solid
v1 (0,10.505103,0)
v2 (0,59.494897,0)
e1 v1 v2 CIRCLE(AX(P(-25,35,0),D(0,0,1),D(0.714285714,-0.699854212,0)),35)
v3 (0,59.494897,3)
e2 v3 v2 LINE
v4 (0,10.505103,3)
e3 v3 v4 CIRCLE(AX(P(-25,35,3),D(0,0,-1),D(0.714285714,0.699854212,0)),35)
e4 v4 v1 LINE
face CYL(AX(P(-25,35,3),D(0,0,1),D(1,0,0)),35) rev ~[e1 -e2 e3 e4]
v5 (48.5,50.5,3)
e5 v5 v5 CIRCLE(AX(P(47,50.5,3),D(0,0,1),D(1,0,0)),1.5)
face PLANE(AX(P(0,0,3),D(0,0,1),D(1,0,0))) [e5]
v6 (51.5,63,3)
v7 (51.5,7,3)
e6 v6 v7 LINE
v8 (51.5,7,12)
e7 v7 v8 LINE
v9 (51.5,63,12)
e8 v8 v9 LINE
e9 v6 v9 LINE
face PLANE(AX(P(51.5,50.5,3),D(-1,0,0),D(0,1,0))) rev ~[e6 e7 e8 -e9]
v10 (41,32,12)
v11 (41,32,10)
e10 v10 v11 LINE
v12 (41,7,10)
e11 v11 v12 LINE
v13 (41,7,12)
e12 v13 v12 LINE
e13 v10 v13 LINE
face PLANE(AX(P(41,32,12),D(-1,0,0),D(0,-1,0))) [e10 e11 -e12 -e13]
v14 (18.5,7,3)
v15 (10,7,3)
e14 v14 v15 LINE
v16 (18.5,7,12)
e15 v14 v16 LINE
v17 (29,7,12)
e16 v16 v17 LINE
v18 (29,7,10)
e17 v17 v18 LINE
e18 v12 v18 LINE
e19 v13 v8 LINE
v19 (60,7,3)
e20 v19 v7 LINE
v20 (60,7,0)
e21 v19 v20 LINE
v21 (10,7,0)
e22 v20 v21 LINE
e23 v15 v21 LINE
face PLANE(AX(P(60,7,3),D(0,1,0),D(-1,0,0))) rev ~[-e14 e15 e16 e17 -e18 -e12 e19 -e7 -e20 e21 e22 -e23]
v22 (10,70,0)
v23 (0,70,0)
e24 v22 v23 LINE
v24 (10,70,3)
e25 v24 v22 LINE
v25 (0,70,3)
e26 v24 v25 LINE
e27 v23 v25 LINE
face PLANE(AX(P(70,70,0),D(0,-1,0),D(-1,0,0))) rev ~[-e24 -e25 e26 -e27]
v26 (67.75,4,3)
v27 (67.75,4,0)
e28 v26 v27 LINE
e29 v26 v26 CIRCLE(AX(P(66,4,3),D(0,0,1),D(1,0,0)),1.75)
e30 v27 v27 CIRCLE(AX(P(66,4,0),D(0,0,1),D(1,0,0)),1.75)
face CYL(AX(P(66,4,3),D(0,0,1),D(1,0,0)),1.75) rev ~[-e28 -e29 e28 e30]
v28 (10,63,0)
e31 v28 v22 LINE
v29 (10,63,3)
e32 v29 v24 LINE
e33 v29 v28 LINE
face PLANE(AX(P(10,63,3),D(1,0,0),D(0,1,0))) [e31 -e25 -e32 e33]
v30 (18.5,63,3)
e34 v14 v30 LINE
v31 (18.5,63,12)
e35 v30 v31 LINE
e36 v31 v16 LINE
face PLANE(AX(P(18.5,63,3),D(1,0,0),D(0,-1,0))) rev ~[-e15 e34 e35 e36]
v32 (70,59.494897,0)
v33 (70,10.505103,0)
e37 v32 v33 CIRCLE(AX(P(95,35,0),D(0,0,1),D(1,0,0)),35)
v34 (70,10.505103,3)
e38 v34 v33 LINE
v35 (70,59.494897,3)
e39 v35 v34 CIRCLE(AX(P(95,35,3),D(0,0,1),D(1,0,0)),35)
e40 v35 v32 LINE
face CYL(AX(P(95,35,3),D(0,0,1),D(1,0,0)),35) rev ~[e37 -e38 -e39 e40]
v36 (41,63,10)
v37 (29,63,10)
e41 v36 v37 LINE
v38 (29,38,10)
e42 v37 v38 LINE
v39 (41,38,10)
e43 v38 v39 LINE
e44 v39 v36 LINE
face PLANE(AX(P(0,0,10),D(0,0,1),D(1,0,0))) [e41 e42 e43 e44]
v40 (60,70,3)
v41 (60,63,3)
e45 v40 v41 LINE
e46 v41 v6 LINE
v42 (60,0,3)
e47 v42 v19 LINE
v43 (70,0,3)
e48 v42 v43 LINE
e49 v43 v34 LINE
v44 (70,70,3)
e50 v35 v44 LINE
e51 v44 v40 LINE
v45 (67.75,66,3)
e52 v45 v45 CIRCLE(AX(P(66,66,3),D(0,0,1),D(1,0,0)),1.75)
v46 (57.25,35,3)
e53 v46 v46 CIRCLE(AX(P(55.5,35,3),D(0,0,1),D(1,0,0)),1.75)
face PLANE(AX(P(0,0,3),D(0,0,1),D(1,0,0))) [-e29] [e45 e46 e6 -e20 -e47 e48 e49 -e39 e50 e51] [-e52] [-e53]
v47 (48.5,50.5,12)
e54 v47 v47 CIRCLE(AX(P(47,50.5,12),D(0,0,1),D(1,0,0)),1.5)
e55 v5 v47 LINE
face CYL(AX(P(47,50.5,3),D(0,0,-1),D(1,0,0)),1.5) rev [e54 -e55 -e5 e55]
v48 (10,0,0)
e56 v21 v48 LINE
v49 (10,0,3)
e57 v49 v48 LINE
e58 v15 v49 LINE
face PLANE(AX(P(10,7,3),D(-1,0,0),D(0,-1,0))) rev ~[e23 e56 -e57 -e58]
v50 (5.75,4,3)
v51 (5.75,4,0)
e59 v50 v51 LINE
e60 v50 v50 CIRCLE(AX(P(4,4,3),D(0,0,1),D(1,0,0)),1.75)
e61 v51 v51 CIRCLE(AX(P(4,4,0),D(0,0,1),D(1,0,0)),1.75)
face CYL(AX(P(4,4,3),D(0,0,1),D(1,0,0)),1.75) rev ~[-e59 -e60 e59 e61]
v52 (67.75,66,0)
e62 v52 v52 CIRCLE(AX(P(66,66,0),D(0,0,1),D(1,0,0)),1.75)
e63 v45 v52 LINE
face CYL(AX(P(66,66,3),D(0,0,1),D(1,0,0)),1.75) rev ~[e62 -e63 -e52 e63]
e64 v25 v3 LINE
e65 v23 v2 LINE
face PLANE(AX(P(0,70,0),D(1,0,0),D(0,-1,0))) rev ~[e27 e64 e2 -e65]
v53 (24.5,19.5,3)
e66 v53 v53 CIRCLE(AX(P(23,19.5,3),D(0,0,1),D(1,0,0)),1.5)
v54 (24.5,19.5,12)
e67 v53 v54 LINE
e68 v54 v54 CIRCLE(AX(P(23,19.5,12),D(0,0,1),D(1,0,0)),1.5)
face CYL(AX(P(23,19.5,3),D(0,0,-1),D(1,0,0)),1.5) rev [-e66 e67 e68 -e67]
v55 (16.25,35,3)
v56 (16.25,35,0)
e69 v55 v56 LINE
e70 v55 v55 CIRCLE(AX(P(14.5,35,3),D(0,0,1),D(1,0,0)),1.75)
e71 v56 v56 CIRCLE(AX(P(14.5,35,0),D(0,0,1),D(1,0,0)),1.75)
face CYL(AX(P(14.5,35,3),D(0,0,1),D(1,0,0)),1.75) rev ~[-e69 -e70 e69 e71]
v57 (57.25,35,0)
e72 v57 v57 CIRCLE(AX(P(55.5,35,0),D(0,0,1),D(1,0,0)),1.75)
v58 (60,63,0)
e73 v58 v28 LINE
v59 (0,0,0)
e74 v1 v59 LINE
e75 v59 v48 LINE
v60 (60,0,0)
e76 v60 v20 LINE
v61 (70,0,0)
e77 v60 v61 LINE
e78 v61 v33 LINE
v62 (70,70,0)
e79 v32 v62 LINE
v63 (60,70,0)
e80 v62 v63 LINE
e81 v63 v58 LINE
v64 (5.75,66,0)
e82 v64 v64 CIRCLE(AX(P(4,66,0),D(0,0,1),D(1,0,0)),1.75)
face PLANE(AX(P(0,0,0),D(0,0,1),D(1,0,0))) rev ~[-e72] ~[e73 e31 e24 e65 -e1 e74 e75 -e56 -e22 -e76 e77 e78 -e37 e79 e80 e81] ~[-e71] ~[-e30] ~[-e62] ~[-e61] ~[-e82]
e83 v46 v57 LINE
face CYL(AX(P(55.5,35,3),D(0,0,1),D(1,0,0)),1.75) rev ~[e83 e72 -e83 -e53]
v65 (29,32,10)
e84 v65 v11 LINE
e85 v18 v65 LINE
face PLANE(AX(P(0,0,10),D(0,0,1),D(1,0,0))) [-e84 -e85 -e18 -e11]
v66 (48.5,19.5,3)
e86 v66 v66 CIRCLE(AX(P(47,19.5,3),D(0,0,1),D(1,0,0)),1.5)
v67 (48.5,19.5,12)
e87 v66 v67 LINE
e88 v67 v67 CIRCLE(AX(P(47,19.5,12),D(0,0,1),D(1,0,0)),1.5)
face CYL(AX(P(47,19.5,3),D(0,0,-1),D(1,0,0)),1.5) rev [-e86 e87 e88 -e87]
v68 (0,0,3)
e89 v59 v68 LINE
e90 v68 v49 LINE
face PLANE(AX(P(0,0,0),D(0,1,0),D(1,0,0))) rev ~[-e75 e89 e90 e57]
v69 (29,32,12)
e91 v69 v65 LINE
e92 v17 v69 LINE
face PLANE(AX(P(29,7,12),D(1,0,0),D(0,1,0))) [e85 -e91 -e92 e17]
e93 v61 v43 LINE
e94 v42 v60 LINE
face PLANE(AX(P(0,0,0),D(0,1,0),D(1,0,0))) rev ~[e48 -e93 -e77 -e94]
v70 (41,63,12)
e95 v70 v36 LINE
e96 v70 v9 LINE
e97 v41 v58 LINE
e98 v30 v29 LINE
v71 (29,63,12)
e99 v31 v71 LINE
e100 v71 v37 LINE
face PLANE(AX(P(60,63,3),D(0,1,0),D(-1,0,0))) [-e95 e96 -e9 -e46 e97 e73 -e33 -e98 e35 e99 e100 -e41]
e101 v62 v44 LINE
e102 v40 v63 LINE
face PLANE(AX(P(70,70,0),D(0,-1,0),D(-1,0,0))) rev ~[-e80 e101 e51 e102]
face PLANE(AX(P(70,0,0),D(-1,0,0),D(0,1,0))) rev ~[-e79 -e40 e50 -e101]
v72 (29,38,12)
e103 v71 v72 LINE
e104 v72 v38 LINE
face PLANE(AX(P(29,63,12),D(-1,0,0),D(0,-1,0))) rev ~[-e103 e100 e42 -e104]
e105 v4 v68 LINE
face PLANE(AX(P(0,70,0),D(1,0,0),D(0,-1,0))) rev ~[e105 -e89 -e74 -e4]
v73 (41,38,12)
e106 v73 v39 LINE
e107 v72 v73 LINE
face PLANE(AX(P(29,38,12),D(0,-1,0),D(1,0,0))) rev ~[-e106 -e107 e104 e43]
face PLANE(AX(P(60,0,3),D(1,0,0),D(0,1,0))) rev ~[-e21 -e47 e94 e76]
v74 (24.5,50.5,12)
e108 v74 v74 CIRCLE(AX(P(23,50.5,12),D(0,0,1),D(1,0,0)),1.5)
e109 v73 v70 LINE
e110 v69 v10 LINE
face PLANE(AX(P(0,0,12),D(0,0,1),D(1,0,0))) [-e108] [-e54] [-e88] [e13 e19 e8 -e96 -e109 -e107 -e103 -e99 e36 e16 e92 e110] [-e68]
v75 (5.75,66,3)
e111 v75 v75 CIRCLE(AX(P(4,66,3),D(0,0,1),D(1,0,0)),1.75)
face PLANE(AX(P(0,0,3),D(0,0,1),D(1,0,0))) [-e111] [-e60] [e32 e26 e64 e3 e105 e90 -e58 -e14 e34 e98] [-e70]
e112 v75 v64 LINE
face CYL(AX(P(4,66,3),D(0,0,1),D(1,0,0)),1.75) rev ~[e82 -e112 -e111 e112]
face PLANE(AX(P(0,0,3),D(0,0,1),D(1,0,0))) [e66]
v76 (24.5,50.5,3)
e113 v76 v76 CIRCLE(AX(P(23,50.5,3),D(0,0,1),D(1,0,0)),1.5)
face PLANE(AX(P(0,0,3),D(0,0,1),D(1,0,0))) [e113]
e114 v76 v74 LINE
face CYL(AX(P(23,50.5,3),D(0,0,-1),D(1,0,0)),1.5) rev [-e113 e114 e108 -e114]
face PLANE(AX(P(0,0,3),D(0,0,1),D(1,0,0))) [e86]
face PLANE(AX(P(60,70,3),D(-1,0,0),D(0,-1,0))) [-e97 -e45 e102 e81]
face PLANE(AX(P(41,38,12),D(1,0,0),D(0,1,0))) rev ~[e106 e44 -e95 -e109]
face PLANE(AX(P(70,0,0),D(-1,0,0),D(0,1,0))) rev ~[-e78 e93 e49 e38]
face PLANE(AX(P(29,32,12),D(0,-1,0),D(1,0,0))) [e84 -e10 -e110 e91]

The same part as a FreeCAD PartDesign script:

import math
import FreeCAD as App
import Part
import Sketcher

doc = App.newDocument("Part")
body = doc.addObject("PartDesign::Body", "Body")

# Sketch on XY plane
sketch1 = doc.addObject("Sketcher::SketchObject", "Sketch")
body.addObject(sketch1)
sketch1.AttachmentSupport = (doc.XY_Plane, [""])
sketch1.MapMode = "FlatFace"
sketch1.addGeometry(Part.LineSegment(App.Vector(0, 70, 0), App.Vector(0, 0, 0)), False)
sketch1.addGeometry(Part.LineSegment(App.Vector(0, 0, 0), App.Vector(70, 0, 0)), False)
sketch1.addGeometry(Part.LineSegment(App.Vector(70, 0, 0), App.Vector(70, 70, 0)), False)
sketch1.addGeometry(Part.LineSegment(App.Vector(70, 70, 0), App.Vector(0, 70, 0)), False)
sketch1.addConstraint(Sketcher.Constraint("Coincident", 0, 2, 1, 1))
sketch1.addConstraint(Sketcher.Constraint("Coincident", 1, 2, 2, 1))
sketch1.addConstraint(Sketcher.Constraint("Coincident", 2, 2, 3, 1))
sketch1.addConstraint(Sketcher.Constraint("Coincident", 3, 2, 0, 1))
sketch1.addConstraint(Sketcher.Constraint("Vertical", 0))
sketch1.addConstraint(Sketcher.Constraint("Horizontal", 1))
sketch1.addConstraint(Sketcher.Constraint("Vertical", 2))
sketch1.addConstraint(Sketcher.Constraint("Horizontal", 3))
sketch1.addConstraint(Sketcher.Constraint("Coincident", 0, 2, -1, 1))
sketch1.addConstraint(Sketcher.Constraint("Equal", 3, 0))
sketch1.addConstraint(Sketcher.Constraint("DistanceX", 1, 1, 1, 2, 70.0))
pad1 = doc.addObject("PartDesign::Pad", "Pad")
body.addObject(pad1)
pad1.Profile = sketch1
pad1.Length = 3

# Sketch on XY plane
sketch2 = doc.addObject("Sketcher::SketchObject", "Sketch001")
body.addObject(sketch2)
sketch2.AttachmentSupport = (doc.XY_Plane, [""])
sketch2.MapMode = "FlatFace"
sketch2.AttachmentOffset = App.Placement(App.Vector(0, 0, 3), App.Rotation())
sketch2.addGeometry(Part.LineSegment(App.Vector(18.5, 63, 0), App.Vector(18.5, 7, 0)), False)
sketch2.addGeometry(Part.LineSegment(App.Vector(18.5, 7, 0), App.Vector(51.5, 7, 0)), False)
sketch2.addGeometry(Part.LineSegment(App.Vector(51.5, 7, 0), App.Vector(51.5, 63, 0)), False)
sketch2.addGeometry(Part.LineSegment(App.Vector(51.5, 63, 0), App.Vector(18.5, 63, 0)), False)
sketch2.addGeometry(Part.Circle(App.Vector(23, 50.5, 0), App.Vector(0, 0, 1), 1.5), False)
sketch2.addGeometry(Part.Circle(App.Vector(47, 50.5, 0), App.Vector(0, 0, 1), 1.5), False)
sketch2.addGeometry(Part.Circle(App.Vector(23, 19.5, 0), App.Vector(0, 0, 1), 1.5), False)
sketch2.addGeometry(Part.Circle(App.Vector(47, 19.5, 0), App.Vector(0, 0, 1), 1.5), False)
sketch2.addConstraint(Sketcher.Constraint("Coincident", 0, 2, 1, 1))
sketch2.addConstraint(Sketcher.Constraint("Coincident", 1, 2, 2, 1))
sketch2.addConstraint(Sketcher.Constraint("Coincident", 2, 2, 3, 1))
sketch2.addConstraint(Sketcher.Constraint("Coincident", 3, 2, 0, 1))
sketch2.addConstraint(Sketcher.Constraint("Vertical", 0))
sketch2.addConstraint(Sketcher.Constraint("Horizontal", 1))
sketch2.addConstraint(Sketcher.Constraint("Vertical", 2))
sketch2.addConstraint(Sketcher.Constraint("Horizontal", 3))
sketch2.addConstraint(Sketcher.Constraint("Equal", 4, 5))
sketch2.addConstraint(Sketcher.Constraint("Equal", 5, 6))
sketch2.addConstraint(Sketcher.Constraint("Equal", 6, 7))
sketch2.addConstraint(Sketcher.Constraint("Horizontal", 4, 3, 5, 3))
sketch2.addConstraint(Sketcher.Constraint("Horizontal", 6, 3, 7, 3))
sketch2.addConstraint(Sketcher.Constraint("Vertical", 4, 3, 6, 3))
sketch2.addConstraint(Sketcher.Constraint("Vertical", 5, 3, 7, 3))
sketch2.addConstraint(Sketcher.Constraint("Diameter", 4, 3.0))
sketch2.addConstraint(Sketcher.Constraint("DistanceY", 0, 2, 0, 1, 56.0))
sketch2.addConstraint(Sketcher.Constraint("DistanceY", -1, 1, 0, 2, 7.0))
sketch2.addConstraint(Sketcher.Constraint("DistanceY", 0, 2, 6, 3, 12.5))
sketch2.addConstraint(Sketcher.Constraint("DistanceY", 5, 3, 2, 2, 12.5))
sketch2.addConstraint(Sketcher.Constraint("DistanceX", 1, 1, 1, 2, 33.0))
sketch2.addConstraint(Sketcher.Constraint("DistanceX", -1, 1, 4, 3, 23.0))
sketch2.addConstraint(Sketcher.Constraint("DistanceX", -1, 1, 5, 3, 47.0))
sketch2.addConstraint(Sketcher.Constraint("DistanceX", -1, 1, 0, 2, 18.5))
pad2 = doc.addObject("PartDesign::Pad", "Pad001")
body.addObject(pad2)
pad2.Profile = sketch2
pad2.Length = 9

# Sketch on XY plane
sketch3 = doc.addObject("Sketcher::SketchObject", "Sketch002")
body.addObject(sketch3)
sketch3.AttachmentSupport = (doc.XY_Plane, [""])
sketch3.MapMode = "FlatFace"
sketch3.AttachmentOffset = App.Placement(App.Vector(0, 0, 12), App.Rotation())
sketch3.addGeometry(Part.LineSegment(App.Vector(41, 38, 0), App.Vector(41, 63, 0)), False)
sketch3.addGeometry(Part.LineSegment(App.Vector(41, 63, 0), App.Vector(29, 63, 0)), False)
sketch3.addGeometry(Part.LineSegment(App.Vector(29, 63, 0), App.Vector(29, 38, 0)), False)
sketch3.addGeometry(Part.LineSegment(App.Vector(29, 38, 0), App.Vector(41, 38, 0)), False)
sketch3.addGeometry(Part.LineSegment(App.Vector(29, 7, 0), App.Vector(41, 7, 0)), False)
sketch3.addGeometry(Part.LineSegment(App.Vector(41, 7, 0), App.Vector(41, 32, 0)), False)
sketch3.addGeometry(Part.LineSegment(App.Vector(41, 32, 0), App.Vector(29, 32, 0)), False)
sketch3.addGeometry(Part.LineSegment(App.Vector(29, 32, 0), App.Vector(29, 7, 0)), False)
sketch3.addConstraint(Sketcher.Constraint("Coincident", 0, 2, 1, 1))
sketch3.addConstraint(Sketcher.Constraint("Coincident", 1, 2, 2, 1))
sketch3.addConstraint(Sketcher.Constraint("Coincident", 2, 2, 3, 1))
sketch3.addConstraint(Sketcher.Constraint("Coincident", 3, 2, 0, 1))
sketch3.addConstraint(Sketcher.Constraint("Coincident", 4, 2, 5, 1))
sketch3.addConstraint(Sketcher.Constraint("Coincident", 5, 2, 6, 1))
sketch3.addConstraint(Sketcher.Constraint("Coincident", 6, 2, 7, 1))
sketch3.addConstraint(Sketcher.Constraint("Coincident", 7, 2, 4, 1))
sketch3.addConstraint(Sketcher.Constraint("Vertical", 0))
sketch3.addConstraint(Sketcher.Constraint("Horizontal", 1))
sketch3.addConstraint(Sketcher.Constraint("Vertical", 2))
sketch3.addConstraint(Sketcher.Constraint("Horizontal", 3))
sketch3.addConstraint(Sketcher.Constraint("Horizontal", 4))
sketch3.addConstraint(Sketcher.Constraint("Vertical", 5))
sketch3.addConstraint(Sketcher.Constraint("Horizontal", 6))
sketch3.addConstraint(Sketcher.Constraint("Vertical", 7))
sketch3.addConstraint(Sketcher.Constraint("Vertical", 3, 2, 4, 2))
sketch3.addConstraint(Sketcher.Constraint("Vertical", 2, 2, 6, 2))
sketch3.addConstraint(Sketcher.Constraint("Equal", 2, 5))
sketch3.addConstraint(Sketcher.Constraint("DistanceX", 1, 2, 1, 1, 12.0))
sketch3.addConstraint(Sketcher.Constraint("DistanceY", 0, 1, 0, 2, 25.0))
sketch3.addConstraint(Sketcher.Constraint("DistanceY", -1, 1, 4, 2, 7.0))
sketch3.addConstraint(Sketcher.Constraint("DistanceY", 4, 2, 0, 2, 56.0))
sketch3.addConstraint(Sketcher.Constraint("DistanceX", -1, 1, 0, 2, 41.0))
pocket1 = doc.addObject("PartDesign::Pocket", "Pocket")
body.addObject(pocket1)
pocket1.Profile = sketch3
pocket1.Length = 2

# Sketch on XY plane
sketch4 = doc.addObject("Sketcher::SketchObject", "Sketch003")
body.addObject(sketch4)
sketch4.AttachmentSupport = (doc.XY_Plane, [""])
sketch4.MapMode = "FlatFace"
sketch4.AttachmentOffset = App.Placement(App.Vector(0, 0, 3), App.Rotation())
sketch4.addGeometry(Part.LineSegment(App.Vector(10, 7, 0), App.Vector(10, 0, 0)), False)
sketch4.addGeometry(Part.LineSegment(App.Vector(10, 0, 0), App.Vector(60, 0, 0)), False)
sketch4.addGeometry(Part.LineSegment(App.Vector(60, 0, 0), App.Vector(60, 7, 0)), False)
sketch4.addGeometry(Part.LineSegment(App.Vector(60, 7, 0), App.Vector(10, 7, 0)), False)
sketch4.addGeometry(Part.LineSegment(App.Vector(60, 63, 0), App.Vector(60, 70, 0)), False)
sketch4.addGeometry(Part.LineSegment(App.Vector(60, 70, 0), App.Vector(10, 70, 0)), False)
sketch4.addGeometry(Part.LineSegment(App.Vector(10, 70, 0), App.Vector(10, 63, 0)), False)
sketch4.addGeometry(Part.LineSegment(App.Vector(10, 63, 0), App.Vector(60, 63, 0)), False)
sketch4.addConstraint(Sketcher.Constraint("Coincident", 0, 2, 1, 1))
sketch4.addConstraint(Sketcher.Constraint("Coincident", 1, 2, 2, 1))
sketch4.addConstraint(Sketcher.Constraint("Coincident", 2, 2, 3, 1))
sketch4.addConstraint(Sketcher.Constraint("Coincident", 3, 2, 0, 1))
sketch4.addConstraint(Sketcher.Constraint("Coincident", 4, 2, 5, 1))
sketch4.addConstraint(Sketcher.Constraint("Coincident", 5, 2, 6, 1))
sketch4.addConstraint(Sketcher.Constraint("Coincident", 6, 2, 7, 1))
sketch4.addConstraint(Sketcher.Constraint("Coincident", 7, 2, 4, 1))
sketch4.addConstraint(Sketcher.Constraint("Vertical", 0))
sketch4.addConstraint(Sketcher.Constraint("Horizontal", 1))
sketch4.addConstraint(Sketcher.Constraint("Vertical", 2))
sketch4.addConstraint(Sketcher.Constraint("Horizontal", 3))
sketch4.addConstraint(Sketcher.Constraint("Vertical", 4))
sketch4.addConstraint(Sketcher.Constraint("Horizontal", 5))
sketch4.addConstraint(Sketcher.Constraint("Vertical", 6))
sketch4.addConstraint(Sketcher.Constraint("Horizontal", 7))
sketch4.addConstraint(Sketcher.Constraint("PointOnObject", 0, 2, -1))
sketch4.addConstraint(Sketcher.Constraint("Vertical", 2, 2, 4, 2))
sketch4.addConstraint(Sketcher.Constraint("Vertical", 3, 2, 5, 2))
sketch4.addConstraint(Sketcher.Constraint("Equal", 2, 4))
sketch4.addConstraint(Sketcher.Constraint("DistanceX", 1, 1, 1, 2, 50.0))
sketch4.addConstraint(Sketcher.Constraint("DistanceY", 0, 2, 0, 1, 7.0))
sketch4.addConstraint(Sketcher.Constraint("DistanceX", -1, 1, 0, 2, 10.0))
sketch4.addConstraint(Sketcher.Constraint("DistanceY", -1, 1, 4, 2, 70.0))
pocket2 = doc.addObject("PartDesign::Pocket", "Pocket001")
body.addObject(pocket2)
pocket2.Profile = sketch4
pocket2.Length = 3

# Sketch on XY plane
sketch5 = doc.addObject("Sketcher::SketchObject", "Sketch004")
body.addObject(sketch5)
sketch5.AttachmentSupport = (doc.XY_Plane, [""])
sketch5.MapMode = "FlatFace"
sketch5.AttachmentOffset = App.Placement(App.Vector(0, 0, 3), App.Rotation())
sketch5.addGeometry(Part.ArcOfCircle(Part.Circle(App.Vector(-25, 35, 0), App.Vector(0, 0, 1), 35), math.radians(-44.415309), math.radians(44.415309)), False)
sketch5.addGeometry(Part.LineSegment(App.Vector(0, 59.494897, 0), App.Vector(0, 10.505103, 0)), False)
sketch5.addGeometry(Part.LineSegment(App.Vector(70, 10.505103, 0), App.Vector(70, 59.494897, 0)), False)
sketch5.addGeometry(Part.ArcOfCircle(Part.Circle(App.Vector(95, 35, 0), App.Vector(0, 0, 1), 35), math.radians(135.584691), math.radians(224.415309)), False)
sketch5.addGeometry(Part.Circle(App.Vector(4, 66, 0), App.Vector(0, 0, 1), 1.75), False)
sketch5.addGeometry(Part.Circle(App.Vector(66, 66, 0), App.Vector(0, 0, 1), 1.75), False)
sketch5.addGeometry(Part.Circle(App.Vector(4, 4, 0), App.Vector(0, 0, 1), 1.75), False)
sketch5.addGeometry(Part.Circle(App.Vector(66, 4, 0), App.Vector(0, 0, 1), 1.75), False)
sketch5.addGeometry(Part.Circle(App.Vector(14.5, 35, 0), App.Vector(0, 0, 1), 1.75), False)
sketch5.addGeometry(Part.Circle(App.Vector(55.5, 35, 0), App.Vector(0, 0, 1), 1.75), False)
sketch5.addConstraint(Sketcher.Constraint("Coincident", 0, 1, 1, 2))
sketch5.addConstraint(Sketcher.Constraint("Coincident", 1, 1, 0, 2))
sketch5.addConstraint(Sketcher.Constraint("Coincident", 2, 1, 3, 2))
sketch5.addConstraint(Sketcher.Constraint("Coincident", 3, 1, 2, 2))
sketch5.addConstraint(Sketcher.Constraint("Vertical", 1))
sketch5.addConstraint(Sketcher.Constraint("Vertical", 2))
sketch5.addConstraint(Sketcher.Constraint("Equal", 0, 3))
sketch5.addConstraint(Sketcher.Constraint("Equal", 4, 5))
sketch5.addConstraint(Sketcher.Constraint("Equal", 5, 6))
sketch5.addConstraint(Sketcher.Constraint("Equal", 6, 7))
sketch5.addConstraint(Sketcher.Constraint("Equal", 7, 8))
sketch5.addConstraint(Sketcher.Constraint("Equal", 8, 9))
sketch5.addConstraint(Sketcher.Constraint("PointOnObject", 0, 1, -2))
sketch5.addConstraint(Sketcher.Constraint("Horizontal", 0, 3, 3, 3))
sketch5.addConstraint(Sketcher.Constraint("Horizontal", 4, 3, 5, 3))
sketch5.addConstraint(Sketcher.Constraint("Horizontal", 6, 3, 7, 3))
sketch5.addConstraint(Sketcher.Constraint("Horizontal", 3, 3, 8, 3))
sketch5.addConstraint(Sketcher.Constraint("Horizontal", 8, 3, 9, 3))
sketch5.addConstraint(Sketcher.Constraint("Horizontal", 0, 1, 2, 1))
sketch5.addConstraint(Sketcher.Constraint("Vertical", 4, 3, 6, 3))
sketch5.addConstraint(Sketcher.Constraint("Vertical", 5, 3, 7, 3))
sketch5.addConstraint(Sketcher.Constraint("Radius", 0, 35.0))
sketch5.addConstraint(Sketcher.Constraint("Diameter", 4, 3.5))
sketch5.addConstraint(Sketcher.Constraint("DistanceX", 0, 3, -1, 1, 25.0))
sketch5.addConstraint(Sketcher.Constraint("DistanceY", -1, 1, 0, 3, 35.0))
sketch5.addConstraint(Sketcher.Constraint("DistanceX", -1, 1, 4, 3, 4.0))
sketch5.addConstraint(Sketcher.Constraint("DistanceY", -1, 1, 6, 3, 4.0))
sketch5.addConstraint(Sketcher.Constraint("DistanceX", -1, 1, 2, 1, 70.0))
sketch5.addConstraint(Sketcher.Constraint("DistanceX", 7, 3, 2, 1, 4.0))
sketch5.addConstraint(Sketcher.Constraint("DistanceY", -1, 1, 4, 3, 66.0))
sketch5.addConstraint(Sketcher.Constraint("DistanceX", 8, 3, 9, 3, 41.0))
sketch5.addConstraint(Sketcher.Constraint("DistanceX", -1, 1, 8, 3, 14.5))
pocket3 = doc.addObject("PartDesign::Pocket", "Pocket002")
body.addObject(pocket3)
pocket3.Profile = sketch5
pocket3.Length = 3

doc.recompute()
